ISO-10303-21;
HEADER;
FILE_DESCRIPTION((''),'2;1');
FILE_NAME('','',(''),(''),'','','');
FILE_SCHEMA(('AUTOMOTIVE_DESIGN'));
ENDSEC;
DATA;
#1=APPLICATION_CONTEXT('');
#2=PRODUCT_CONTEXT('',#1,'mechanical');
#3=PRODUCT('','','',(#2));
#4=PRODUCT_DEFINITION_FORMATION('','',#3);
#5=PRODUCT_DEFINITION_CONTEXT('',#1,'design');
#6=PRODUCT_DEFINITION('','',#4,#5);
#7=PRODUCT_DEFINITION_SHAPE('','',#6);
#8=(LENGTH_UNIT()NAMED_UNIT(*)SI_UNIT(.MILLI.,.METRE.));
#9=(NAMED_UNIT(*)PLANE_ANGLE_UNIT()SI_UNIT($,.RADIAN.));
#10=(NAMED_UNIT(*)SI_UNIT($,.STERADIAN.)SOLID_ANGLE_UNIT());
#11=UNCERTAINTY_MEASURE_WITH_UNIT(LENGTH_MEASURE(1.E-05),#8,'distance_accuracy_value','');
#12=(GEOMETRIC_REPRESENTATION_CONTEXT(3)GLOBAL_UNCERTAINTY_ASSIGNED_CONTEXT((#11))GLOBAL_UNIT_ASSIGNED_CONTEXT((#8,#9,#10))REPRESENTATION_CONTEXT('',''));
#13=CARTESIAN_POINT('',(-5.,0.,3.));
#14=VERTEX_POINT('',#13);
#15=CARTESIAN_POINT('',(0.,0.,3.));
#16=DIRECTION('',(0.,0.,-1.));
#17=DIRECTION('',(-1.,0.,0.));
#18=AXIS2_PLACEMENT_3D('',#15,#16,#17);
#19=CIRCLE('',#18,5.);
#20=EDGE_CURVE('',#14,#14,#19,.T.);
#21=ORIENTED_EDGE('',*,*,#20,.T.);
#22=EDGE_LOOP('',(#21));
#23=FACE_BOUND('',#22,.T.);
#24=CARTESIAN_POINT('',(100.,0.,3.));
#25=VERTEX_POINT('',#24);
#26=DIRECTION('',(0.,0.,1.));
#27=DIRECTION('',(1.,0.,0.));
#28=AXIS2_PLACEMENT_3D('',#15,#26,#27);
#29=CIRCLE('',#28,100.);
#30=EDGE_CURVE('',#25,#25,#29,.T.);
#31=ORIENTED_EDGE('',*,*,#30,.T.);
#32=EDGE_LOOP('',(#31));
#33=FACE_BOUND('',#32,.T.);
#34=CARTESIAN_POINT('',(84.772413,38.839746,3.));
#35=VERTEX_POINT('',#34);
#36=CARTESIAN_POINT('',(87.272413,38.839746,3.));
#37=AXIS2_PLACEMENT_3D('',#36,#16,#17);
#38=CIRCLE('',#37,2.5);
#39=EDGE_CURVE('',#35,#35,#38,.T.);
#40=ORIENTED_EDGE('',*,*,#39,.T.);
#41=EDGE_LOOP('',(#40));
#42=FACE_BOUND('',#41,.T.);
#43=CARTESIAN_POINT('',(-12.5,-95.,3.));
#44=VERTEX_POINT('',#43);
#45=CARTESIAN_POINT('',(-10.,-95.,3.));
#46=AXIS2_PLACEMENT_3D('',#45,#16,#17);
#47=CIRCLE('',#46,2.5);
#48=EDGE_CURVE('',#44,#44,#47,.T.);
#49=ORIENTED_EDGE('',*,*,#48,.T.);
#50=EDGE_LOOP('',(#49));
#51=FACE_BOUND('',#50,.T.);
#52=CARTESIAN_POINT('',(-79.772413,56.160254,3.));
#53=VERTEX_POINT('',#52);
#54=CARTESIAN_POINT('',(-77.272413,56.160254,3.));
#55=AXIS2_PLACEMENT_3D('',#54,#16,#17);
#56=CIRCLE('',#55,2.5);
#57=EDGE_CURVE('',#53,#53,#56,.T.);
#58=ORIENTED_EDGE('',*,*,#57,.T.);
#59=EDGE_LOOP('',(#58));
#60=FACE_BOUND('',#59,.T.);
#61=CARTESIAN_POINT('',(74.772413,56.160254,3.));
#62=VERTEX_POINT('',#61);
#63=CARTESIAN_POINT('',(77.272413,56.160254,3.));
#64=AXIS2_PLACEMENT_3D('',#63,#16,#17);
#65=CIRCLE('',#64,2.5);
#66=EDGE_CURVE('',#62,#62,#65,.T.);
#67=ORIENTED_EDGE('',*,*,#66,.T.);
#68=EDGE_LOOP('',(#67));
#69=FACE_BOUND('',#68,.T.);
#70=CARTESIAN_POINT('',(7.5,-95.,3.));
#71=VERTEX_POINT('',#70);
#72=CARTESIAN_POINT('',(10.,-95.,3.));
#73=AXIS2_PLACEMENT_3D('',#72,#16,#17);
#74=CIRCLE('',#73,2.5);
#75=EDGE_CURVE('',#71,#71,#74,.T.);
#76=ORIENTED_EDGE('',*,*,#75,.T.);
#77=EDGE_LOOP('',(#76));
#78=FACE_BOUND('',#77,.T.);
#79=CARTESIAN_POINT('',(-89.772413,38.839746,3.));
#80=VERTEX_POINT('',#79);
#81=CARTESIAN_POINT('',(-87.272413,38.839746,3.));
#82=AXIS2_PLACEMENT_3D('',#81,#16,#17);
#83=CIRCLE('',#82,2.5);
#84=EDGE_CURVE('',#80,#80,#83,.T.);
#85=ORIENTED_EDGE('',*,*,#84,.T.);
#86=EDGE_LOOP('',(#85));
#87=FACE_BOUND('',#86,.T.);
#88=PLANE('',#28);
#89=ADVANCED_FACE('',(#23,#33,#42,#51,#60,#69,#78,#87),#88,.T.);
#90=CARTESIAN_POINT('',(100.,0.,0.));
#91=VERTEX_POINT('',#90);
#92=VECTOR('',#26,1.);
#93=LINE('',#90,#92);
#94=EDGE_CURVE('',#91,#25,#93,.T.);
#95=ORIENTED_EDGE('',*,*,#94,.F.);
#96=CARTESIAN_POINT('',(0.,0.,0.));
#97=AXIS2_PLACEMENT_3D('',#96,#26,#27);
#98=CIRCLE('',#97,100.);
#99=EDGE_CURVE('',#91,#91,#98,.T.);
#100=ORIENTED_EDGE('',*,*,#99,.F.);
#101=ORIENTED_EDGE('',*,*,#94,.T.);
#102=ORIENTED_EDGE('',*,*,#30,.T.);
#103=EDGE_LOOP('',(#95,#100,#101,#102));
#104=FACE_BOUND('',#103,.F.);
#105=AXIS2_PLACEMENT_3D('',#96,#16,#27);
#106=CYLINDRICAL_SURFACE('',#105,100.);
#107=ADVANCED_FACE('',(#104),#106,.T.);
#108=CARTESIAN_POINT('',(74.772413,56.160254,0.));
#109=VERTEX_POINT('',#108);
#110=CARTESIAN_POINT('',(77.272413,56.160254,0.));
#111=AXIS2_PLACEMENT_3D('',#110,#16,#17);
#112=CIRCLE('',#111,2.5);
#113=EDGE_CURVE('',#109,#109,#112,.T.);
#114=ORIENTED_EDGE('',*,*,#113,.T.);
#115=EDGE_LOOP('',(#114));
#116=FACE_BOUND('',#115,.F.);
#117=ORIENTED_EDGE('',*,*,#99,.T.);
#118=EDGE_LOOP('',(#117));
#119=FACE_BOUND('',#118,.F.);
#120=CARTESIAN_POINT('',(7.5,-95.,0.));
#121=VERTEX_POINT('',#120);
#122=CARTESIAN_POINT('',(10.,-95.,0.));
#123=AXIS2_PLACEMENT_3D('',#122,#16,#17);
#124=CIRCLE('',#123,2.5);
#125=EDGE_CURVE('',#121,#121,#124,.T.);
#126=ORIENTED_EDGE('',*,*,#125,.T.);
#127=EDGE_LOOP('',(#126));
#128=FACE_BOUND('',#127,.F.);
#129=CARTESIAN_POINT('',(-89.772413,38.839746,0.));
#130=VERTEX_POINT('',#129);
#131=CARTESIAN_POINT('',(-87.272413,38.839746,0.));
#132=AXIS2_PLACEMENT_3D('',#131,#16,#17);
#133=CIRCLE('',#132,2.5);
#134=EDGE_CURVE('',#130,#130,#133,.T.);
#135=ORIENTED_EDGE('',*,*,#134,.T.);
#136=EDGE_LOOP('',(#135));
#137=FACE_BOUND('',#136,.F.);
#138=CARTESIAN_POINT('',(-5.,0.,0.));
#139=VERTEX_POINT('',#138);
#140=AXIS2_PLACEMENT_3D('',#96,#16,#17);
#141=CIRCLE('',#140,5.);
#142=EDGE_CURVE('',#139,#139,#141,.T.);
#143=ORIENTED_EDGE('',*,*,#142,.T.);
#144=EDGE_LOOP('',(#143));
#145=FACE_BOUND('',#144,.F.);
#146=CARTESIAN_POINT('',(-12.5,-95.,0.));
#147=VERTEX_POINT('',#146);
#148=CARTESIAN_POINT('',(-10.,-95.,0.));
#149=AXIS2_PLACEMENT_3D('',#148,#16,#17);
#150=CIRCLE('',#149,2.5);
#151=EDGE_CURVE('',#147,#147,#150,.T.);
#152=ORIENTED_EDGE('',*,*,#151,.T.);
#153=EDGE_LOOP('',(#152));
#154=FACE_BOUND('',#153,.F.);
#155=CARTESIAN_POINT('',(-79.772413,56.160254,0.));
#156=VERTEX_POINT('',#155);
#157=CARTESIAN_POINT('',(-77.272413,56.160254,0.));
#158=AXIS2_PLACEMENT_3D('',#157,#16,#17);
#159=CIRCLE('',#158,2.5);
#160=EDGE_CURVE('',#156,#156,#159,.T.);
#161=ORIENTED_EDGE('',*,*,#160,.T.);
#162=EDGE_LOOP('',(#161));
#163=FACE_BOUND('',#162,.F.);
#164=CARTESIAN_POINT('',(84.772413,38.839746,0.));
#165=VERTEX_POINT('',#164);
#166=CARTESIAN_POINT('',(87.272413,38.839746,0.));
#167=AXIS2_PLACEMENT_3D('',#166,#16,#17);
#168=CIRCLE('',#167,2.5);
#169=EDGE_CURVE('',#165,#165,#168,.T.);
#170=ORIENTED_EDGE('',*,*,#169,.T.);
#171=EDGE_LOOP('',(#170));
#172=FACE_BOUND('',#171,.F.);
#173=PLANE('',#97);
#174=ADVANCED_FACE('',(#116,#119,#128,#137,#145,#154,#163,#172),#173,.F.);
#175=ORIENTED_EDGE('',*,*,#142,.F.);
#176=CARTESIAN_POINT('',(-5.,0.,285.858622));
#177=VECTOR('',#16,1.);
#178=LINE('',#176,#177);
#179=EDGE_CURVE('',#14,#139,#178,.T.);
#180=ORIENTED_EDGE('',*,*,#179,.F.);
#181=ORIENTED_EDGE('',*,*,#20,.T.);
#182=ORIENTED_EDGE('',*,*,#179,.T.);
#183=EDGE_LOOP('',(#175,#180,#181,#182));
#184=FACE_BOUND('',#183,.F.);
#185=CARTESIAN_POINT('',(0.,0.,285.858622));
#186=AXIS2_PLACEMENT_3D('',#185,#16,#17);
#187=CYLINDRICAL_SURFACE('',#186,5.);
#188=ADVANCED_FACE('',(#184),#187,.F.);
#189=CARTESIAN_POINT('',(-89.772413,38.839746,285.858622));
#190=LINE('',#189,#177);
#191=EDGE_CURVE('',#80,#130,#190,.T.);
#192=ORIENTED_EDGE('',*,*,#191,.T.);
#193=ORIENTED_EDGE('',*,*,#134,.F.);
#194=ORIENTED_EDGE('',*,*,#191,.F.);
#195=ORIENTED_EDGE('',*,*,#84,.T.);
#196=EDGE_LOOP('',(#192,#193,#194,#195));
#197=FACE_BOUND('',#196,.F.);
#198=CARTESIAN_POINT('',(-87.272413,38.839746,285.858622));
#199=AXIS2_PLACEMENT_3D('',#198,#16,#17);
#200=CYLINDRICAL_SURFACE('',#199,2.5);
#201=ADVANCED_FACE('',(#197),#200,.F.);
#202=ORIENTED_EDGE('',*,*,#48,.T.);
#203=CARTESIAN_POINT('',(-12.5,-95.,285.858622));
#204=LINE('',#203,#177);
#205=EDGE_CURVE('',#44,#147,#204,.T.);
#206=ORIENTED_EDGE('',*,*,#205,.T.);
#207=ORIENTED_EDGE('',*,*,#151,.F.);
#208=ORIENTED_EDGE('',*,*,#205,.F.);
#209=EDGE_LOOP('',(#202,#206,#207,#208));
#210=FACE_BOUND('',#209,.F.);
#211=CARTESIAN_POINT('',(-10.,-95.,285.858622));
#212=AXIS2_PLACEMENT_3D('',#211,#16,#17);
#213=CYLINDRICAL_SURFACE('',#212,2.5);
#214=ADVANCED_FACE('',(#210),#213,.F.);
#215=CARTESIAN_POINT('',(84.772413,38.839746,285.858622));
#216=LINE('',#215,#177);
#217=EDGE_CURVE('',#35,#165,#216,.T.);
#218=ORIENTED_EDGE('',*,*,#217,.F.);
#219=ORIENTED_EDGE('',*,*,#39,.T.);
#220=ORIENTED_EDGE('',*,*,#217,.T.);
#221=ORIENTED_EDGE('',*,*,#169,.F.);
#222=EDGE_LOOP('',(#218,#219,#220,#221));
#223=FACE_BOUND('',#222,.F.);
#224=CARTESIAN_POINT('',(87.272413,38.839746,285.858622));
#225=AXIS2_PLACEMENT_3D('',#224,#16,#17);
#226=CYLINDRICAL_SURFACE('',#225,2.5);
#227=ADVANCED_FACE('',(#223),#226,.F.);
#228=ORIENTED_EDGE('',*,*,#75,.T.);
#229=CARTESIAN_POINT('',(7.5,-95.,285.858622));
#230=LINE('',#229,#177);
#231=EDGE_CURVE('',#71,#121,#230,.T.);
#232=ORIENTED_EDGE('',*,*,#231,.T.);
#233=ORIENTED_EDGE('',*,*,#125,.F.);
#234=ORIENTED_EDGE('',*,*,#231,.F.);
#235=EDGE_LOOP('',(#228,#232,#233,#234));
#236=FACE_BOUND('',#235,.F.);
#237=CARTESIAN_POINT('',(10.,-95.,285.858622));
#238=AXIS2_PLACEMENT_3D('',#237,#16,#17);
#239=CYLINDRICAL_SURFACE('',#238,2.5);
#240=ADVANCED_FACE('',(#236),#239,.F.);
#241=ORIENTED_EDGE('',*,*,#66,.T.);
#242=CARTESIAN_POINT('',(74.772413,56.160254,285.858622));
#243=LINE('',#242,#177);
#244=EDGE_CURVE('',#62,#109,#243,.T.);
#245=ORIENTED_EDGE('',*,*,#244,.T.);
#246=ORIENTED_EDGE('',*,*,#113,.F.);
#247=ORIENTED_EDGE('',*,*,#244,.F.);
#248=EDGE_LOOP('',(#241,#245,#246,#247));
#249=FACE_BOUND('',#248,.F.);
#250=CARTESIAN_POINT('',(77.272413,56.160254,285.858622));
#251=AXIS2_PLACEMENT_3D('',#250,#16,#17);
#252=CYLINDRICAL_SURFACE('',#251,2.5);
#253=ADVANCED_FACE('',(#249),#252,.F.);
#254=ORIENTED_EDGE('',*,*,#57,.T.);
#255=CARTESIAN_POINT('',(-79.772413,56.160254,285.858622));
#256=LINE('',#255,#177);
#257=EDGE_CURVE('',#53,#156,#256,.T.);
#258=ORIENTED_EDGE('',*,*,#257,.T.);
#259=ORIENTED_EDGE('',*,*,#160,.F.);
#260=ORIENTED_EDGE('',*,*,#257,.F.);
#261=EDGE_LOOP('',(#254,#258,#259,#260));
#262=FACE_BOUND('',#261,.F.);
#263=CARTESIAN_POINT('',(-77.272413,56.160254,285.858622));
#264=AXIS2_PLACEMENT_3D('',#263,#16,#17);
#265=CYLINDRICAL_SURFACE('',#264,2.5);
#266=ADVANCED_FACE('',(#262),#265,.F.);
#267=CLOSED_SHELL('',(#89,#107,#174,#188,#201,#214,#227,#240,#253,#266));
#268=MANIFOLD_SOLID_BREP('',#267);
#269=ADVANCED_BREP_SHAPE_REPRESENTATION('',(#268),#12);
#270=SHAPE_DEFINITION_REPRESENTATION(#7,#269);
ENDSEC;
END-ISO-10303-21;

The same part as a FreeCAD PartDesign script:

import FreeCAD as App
import Part
import Sketcher

V = App.Vector
Q = App.Units.Quantity

doc = App.newDocument("Part")
body = doc.addObject("PartDesign::Body", "Body")

# Sketch on XY plane
sketch1 = body.newObject("Sketcher::SketchObject", "Sketch")
sketch1.AttachmentSupport = (doc.getObject("XY_Plane"), [""])
sketch1.MapMode = "FlatFace"
sketch1.addGeometry(Part.Circle(V(0, 0, 0), V(0, 0, 1), 100), False)
sketch1.addConstraint([
    Sketcher.Constraint("Coincident", 0, 3, -1, 1),
    Sketcher.Constraint("Diameter", 0, Q("200 mm")),
])
pad1 = body.newObject("PartDesign::Pad", "Pad")
pad1.Profile = sketch1
pad1.Length = 3

# Sketch on XY plane
sketch2 = body.newObject("Sketcher::SketchObject", "Sketch001")
sketch2.AttachmentSupport = (doc.getObject("XY_Plane"), [""])
sketch2.MapMode = "FlatFace"
sketch2.AttachmentOffset = App.Placement(V(0, 0, 3), App.Rotation())
sketch2.addGeometry(Part.Circle(V(0, 0, 0), V(0, 0, 1), 5), False)
sketch2.addConstraint([
    Sketcher.Constraint("Coincident", 0, 3, -1, 1),
    Sketcher.Constraint("Diameter", 0, Q("10 mm")),
])
doc.recompute()
hole = body.newObject("PartDesign::Hole", "Hole")
hole.Profile = sketch2
hole.ThreadType = "None"
hole.Diameter = 10
hole.DepthType = "ThroughAll"

# Sketch on XY plane
sketch3 = body.newObject("Sketcher::SketchObject", "Sketch002")
sketch3.AttachmentSupport = (doc.getObject("XY_Plane"), [""])
sketch3.MapMode = "FlatFace"
sketch3.AttachmentOffset = App.Placement(V(0, 0, 3), App.Rotation())
sketch3.addGeometry([
    Part.Circle(V(-10, -95, 0), V(0, 0, 1), 2.5),  # 0
    Part.Circle(V(10, -95, 0), V(0, 0, 1), 2.5),  # 1
    Part.Circle(V(87.3, 38.8, 0), V(0, 0, 1), 2.5),  # 2
    Part.Circle(V(77.3, 56.2, 0), V(0, 0, 1), 2.5),  # 3
    Part.Circle(V(-77.3, 56.2, 0), V(0, 0, 1), 2.5),  # 4
    Part.Circle(V(-87.3, 38.8, 0), V(0, 0, 1), 2.5),  # 5
], False)
sketch3.addConstraint([
    Sketcher.Constraint("Equal", 0, 1),
    Sketcher.Constraint("Equal", 1, 2),
    Sketcher.Constraint("Equal", 2, 3),
    Sketcher.Constraint("Equal", 3, 4),
    Sketcher.Constraint("Equal", 4, 5),
    Sketcher.Constraint("Symmetric", 0, 3, 1, 3, -2),
    Sketcher.Constraint("Symmetric", 3, 3, 4, 3, -2),
    Sketcher.Constraint("Symmetric", 2, 3, 5, 3, -2),
    Sketcher.Constraint("Diameter", 0, Q("5 mm")),
    Sketcher.Constraint("DistanceX", 0, 3, -1, 1, Q("10 mm")),
    Sketcher.Constraint("DistanceY", 0, 3, -1, 1, Q("95 mm")),
    Sketcher.Constraint("DistanceX", 3, 3, 2, 3, Q("10 mm")),
    Sketcher.Constraint("DistanceY", 2, 3, 3, 3, Q("17.320508 mm")),
    Sketcher.Constraint("DistanceX", -1, 1, 2, 3, Q("87.272413 mm")),
    Sketcher.Constraint("DistanceY", -1, 1, 2, 3, Q("38.839746 mm")),
])
doc.recompute()
hole2 = body.newObject("PartDesign::Hole", "Hole001")
hole2.Profile = sketch3
hole2.ThreadType = "None"
hole2.Diameter = 5
hole2.DepthType = "ThroughAll"

doc.recompute()
